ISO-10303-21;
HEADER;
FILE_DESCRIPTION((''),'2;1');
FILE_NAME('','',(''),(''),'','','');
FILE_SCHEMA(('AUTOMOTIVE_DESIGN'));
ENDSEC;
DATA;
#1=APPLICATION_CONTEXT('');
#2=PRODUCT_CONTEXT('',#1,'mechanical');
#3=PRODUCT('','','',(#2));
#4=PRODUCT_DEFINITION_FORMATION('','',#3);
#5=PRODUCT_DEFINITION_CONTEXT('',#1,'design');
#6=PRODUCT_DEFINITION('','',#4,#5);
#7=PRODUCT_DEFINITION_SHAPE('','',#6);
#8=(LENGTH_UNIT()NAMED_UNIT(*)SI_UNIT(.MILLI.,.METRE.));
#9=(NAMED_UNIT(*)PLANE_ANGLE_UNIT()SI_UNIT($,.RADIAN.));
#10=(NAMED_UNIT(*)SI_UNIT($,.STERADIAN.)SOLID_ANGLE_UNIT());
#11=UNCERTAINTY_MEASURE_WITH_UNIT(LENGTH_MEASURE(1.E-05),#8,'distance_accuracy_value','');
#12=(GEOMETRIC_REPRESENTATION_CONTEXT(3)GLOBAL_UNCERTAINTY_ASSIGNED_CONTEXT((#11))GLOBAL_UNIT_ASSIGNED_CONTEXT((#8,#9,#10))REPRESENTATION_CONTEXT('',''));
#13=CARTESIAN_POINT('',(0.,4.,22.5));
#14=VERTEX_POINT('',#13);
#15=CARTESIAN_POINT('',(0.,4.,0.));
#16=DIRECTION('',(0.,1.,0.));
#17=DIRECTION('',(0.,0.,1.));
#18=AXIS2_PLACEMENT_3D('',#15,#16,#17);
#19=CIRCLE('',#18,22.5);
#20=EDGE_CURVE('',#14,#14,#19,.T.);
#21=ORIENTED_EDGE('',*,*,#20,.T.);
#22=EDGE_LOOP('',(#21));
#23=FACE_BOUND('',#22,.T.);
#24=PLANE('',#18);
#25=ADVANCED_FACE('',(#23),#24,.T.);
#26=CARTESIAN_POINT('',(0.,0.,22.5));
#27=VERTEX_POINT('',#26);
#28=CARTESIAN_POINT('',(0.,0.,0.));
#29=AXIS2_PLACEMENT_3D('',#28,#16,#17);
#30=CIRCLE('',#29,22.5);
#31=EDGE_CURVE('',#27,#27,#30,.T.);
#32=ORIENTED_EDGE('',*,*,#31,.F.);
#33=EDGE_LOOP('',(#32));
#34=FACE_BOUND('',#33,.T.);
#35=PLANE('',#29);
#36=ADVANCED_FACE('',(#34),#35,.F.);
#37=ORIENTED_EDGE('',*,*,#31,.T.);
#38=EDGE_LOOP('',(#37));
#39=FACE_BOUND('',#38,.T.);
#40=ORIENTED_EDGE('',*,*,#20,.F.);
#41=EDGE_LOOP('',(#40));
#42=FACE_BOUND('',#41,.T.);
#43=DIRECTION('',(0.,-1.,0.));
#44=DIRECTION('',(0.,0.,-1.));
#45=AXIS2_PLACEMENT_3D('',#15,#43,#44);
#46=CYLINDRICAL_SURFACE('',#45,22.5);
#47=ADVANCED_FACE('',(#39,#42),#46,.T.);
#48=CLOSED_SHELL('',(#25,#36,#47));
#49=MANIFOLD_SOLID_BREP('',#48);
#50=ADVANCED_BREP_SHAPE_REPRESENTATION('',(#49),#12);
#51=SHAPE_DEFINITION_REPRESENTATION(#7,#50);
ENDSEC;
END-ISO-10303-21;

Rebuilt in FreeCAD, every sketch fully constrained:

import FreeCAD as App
import Part
import Sketcher

V = App.Vector

doc = App.newDocument("Part")
params = doc.addObject("Spreadsheet::Sheet", "Params")
for row, (alias, value) in enumerate([
    ("sketch1_diameter", "45 mm"),
    ("pad1_length", "4 mm"),
], start=1):
    params.set(f"A{row}", alias)
    params.set(f"B{row}", "=" + value)
    params.setAlias(f"B{row}", alias)

body = doc.addObject("PartDesign::Body", "Body")

sketch1 = body.newObject("Sketcher::SketchObject", "Sketch")
sketch1.AttachmentSupport = (doc.getObject("XZ_Plane"), [""])
sketch1.MapMode = "FlatFace"
sketch1.addGeometry(Part.Circle(V(0, 0, 0), V(0, 0, 1), 22), False)
sketch1.addConstraint([
    Sketcher.Constraint("Coincident", 0, 3, -1, 1),
    Sketcher.Constraint("Diameter", 0, 45.0),
])
sketch1.setExpression("Constraints[1]", "Params.sketch1_diameter")
pad1 = body.newObject("PartDesign::Pad", "Pad")
pad1.Profile = sketch1
pad1.setExpression("Length", "Params.pad1_length")
pad1.Reversed = True

doc.recompute()
